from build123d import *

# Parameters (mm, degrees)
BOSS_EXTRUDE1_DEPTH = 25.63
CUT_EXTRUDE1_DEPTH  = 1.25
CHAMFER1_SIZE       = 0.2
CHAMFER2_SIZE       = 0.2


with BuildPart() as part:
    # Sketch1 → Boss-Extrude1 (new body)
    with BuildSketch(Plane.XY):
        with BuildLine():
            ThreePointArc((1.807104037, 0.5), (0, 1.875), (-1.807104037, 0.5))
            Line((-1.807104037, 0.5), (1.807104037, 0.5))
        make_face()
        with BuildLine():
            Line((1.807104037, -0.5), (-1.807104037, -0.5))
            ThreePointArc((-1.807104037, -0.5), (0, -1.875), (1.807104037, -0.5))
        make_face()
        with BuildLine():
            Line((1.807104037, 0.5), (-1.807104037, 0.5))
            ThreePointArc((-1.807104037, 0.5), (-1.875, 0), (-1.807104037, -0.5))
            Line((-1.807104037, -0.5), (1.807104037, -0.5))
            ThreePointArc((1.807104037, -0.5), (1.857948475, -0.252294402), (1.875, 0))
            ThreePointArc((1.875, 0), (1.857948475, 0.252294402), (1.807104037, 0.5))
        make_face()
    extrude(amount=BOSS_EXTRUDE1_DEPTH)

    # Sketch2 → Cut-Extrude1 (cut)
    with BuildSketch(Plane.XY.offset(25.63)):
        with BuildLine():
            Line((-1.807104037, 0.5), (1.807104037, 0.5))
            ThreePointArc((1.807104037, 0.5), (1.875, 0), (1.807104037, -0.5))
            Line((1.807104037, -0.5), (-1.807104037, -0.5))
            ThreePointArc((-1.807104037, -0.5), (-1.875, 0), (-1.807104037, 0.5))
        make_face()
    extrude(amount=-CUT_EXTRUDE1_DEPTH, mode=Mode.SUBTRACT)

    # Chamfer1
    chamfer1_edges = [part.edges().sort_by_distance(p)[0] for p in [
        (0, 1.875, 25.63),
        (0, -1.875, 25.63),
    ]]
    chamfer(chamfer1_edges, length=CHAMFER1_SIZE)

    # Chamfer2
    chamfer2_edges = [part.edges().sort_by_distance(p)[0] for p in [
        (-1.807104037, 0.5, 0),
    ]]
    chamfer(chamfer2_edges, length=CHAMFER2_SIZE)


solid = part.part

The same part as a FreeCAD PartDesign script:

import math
import FreeCAD as App
import Part
import Sketcher
from FreeCAD import Vector


def edges_at(feature, points):
    """Names of the edges that pass closest to the given points."""
    edges = feature.Shape.Edges
    near = lambda p: min(range(len(edges)), key=lambda i: edges[i].distToShape(Part.Vertex(*p))[0])
    return sorted({f"Edge{near(p) + 1}" for p in points})

doc = App.newDocument("Part")
body = doc.addObject("PartDesign::Body", "Body")

sketch1 = body.newObject("Sketcher::SketchObject", "Sketch")
sketch1.AttachmentSupport = (doc.getObject("XY_Plane"), [""])
sketch1.MapMode = "FlatFace"
sketch1.addGeometry([
    Part.ArcOfCircle(Part.Circle(Vector(0, 0, 0), Vector(0, 0, 1), 1.9), math.radians(15), math.radians(165)),
    Part.ArcOfCircle(Part.Circle(Vector(0, 0, 0), Vector(0, 0, 1), 1.9), math.radians(165), math.radians(195)),
    Part.ArcOfCircle(Part.Circle(Vector(0, 0, 0), Vector(0, 0, 1), 1.9), math.radians(-165), math.radians(-15)),
    Part.ArcOfCircle(Part.Circle(Vector(0, 0, 0), Vector(0, 0, 1), 1.9), math.radians(-15.47), math.radians(0)),
    Part.ArcOfCircle(Part.Circle(Vector(0, 0, 0), Vector(0, 0, 1), 1.9), math.radians(0), math.radians(15.47)),
], False)
sketch1.addConstraint([
    Sketcher.Constraint("Tangent", 0, 2, 1, 1),
    Sketcher.Constraint("Tangent", 1, 2, 2, 1),
    Sketcher.Constraint("Tangent", 2, 2, 3, 1),
    Sketcher.Constraint("Tangent", 3, 2, 4, 1),
    Sketcher.Constraint("Tangent", 4, 2, 0, 1),
    Sketcher.Constraint("Coincident", 0, 3, -1, 1),
    Sketcher.Constraint("Coincident", 2, 3, -1, 1),
    Sketcher.Constraint("PointOnObject", 3, 2, -1),
    Sketcher.Constraint("Horizontal", 1, 2, 2, 2),
    Sketcher.Constraint("Horizontal", 0, 2, 4, 2),
    Sketcher.Constraint("Vertical", 0, 2, 1, 2),
    Sketcher.Constraint("Radius", 0, 1.875),
    Sketcher.Constraint("DistanceY", 1, 2, 0, 2, 1.0),
])
pad1 = body.newObject("PartDesign::Pad", "Pad")
pad1.Profile = sketch1
pad1.Length = 25.63

sketch2 = body.newObject("Sketcher::SketchObject", "Sketch001")
sketch2.AttachmentSupport = (doc.getObject("XY_Plane"), [""])
sketch2.MapMode = "FlatFace"
sketch2.AttachmentOffset = App.Placement(Vector(0, 0, 25.63), App.Rotation())
sketch2.addGeometry([
    Part.LineSegment(Vector(1.8, 0.5, 0), Vector(-1.8, 0.5, 0)),
    Part.ArcOfCircle(Part.Circle(Vector(0, 0, 0), Vector(0, 0, 1), 1.9), math.radians(165), math.radians(195)),
    Part.LineSegment(Vector(-1.8, -0.5, 0), Vector(1.8, -0.5, 0)),
    Part.ArcOfCircle(Part.Circle(Vector(0, 0, 0), Vector(0, 0, 1), 1.9), math.radians(-15), math.radians(15)),
], False)
sketch2.addConstraint([
    Sketcher.Constraint("Coincident", 0, 2, 1, 1),
    Sketcher.Constraint("Coincident", 1, 2, 2, 1),
    Sketcher.Constraint("Coincident", 2, 2, 3, 1),
    Sketcher.Constraint("Coincident", 3, 2, 0, 1),
    Sketcher.Constraint("Horizontal", 0),
    Sketcher.Constraint("Horizontal", 2),
    Sketcher.Constraint("Coincident", 1, 3, -1, 1),
    Sketcher.Constraint("Coincident", 3, 3, -1, 1),
    Sketcher.Constraint("Equal", 1, 3),
    Sketcher.Constraint("Vertical", 0, 2, 1, 2),
    Sketcher.Constraint("Radius", 1, 1.875),
    Sketcher.Constraint("DistanceY", 1, 2, 0, 2, 1.0),
])
pocket1 = body.newObject("PartDesign::Pocket", "Pocket")
pocket1.Profile = sketch2
pocket1.Length = 1.25
doc.recompute()

chamfer = body.newObject("PartDesign::Chamfer", "Chamfer")
chamfer.Base = (pocket1, edges_at(pocket1, [(0, 1.875, 25.63), (0, -1.875, 25.63)]))
chamfer.Size = 0.2
doc.recompute()

chamfer2 = body.newObject("PartDesign::Chamfer", "Chamfer001")
chamfer2.Base = (chamfer, edges_at(chamfer, [(0, 1.875, 0)]))
chamfer2.Size = 0.2

doc.recompute()
